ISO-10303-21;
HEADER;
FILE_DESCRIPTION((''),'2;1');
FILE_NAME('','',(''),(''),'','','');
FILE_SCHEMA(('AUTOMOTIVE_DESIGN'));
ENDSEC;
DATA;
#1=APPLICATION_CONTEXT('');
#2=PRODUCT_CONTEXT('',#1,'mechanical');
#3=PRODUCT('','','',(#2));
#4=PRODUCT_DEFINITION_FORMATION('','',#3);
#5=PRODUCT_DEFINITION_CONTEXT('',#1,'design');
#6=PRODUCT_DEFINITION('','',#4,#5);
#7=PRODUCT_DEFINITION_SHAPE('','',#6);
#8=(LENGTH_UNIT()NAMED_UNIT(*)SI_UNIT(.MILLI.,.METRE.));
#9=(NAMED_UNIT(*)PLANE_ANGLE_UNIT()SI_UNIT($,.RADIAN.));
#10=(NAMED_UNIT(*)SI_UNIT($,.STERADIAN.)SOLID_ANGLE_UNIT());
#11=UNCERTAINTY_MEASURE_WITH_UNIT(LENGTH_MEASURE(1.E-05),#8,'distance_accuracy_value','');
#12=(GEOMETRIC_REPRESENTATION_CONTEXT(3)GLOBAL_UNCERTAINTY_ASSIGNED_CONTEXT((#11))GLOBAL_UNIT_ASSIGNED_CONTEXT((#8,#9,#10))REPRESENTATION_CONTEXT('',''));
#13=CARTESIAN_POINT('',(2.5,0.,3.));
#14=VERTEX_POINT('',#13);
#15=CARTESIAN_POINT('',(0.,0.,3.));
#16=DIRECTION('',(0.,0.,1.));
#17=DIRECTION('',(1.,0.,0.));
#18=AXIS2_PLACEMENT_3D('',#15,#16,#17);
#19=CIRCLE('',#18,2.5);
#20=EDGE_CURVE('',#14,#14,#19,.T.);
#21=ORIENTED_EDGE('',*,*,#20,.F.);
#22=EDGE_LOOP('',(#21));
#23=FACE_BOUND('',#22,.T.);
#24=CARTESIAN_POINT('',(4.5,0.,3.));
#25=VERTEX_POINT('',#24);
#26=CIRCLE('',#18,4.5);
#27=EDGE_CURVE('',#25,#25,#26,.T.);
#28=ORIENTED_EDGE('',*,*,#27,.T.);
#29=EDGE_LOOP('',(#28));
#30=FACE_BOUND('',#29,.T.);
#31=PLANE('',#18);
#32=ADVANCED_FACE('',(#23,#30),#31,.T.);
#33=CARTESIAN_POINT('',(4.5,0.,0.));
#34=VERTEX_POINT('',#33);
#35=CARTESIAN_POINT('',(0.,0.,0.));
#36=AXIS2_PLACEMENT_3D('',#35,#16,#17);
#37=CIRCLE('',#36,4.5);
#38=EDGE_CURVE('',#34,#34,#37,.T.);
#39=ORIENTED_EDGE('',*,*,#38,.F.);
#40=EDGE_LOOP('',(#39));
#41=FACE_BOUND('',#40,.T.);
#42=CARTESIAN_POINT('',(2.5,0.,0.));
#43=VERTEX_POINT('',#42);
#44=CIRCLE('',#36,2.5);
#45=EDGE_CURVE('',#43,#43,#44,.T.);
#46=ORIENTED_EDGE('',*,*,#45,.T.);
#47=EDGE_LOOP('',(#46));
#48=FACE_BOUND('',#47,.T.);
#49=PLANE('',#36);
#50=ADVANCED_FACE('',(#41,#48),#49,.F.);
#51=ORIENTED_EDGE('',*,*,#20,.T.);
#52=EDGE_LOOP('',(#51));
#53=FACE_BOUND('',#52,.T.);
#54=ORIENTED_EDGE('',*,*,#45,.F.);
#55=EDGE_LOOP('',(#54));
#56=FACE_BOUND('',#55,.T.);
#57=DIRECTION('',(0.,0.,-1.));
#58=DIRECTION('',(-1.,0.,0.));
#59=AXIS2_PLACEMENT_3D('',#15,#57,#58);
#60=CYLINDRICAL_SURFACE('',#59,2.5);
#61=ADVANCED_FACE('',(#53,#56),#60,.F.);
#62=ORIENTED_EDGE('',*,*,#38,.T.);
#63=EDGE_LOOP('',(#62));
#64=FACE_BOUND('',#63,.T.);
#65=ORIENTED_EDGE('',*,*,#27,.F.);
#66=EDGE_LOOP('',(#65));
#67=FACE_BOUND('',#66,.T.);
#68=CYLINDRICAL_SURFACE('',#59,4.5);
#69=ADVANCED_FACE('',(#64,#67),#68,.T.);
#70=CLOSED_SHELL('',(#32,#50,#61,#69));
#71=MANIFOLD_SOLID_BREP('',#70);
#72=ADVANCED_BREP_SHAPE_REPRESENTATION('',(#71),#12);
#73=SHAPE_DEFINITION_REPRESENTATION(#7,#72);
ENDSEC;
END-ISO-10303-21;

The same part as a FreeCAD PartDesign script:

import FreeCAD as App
import Part
import Sketcher
from FreeCAD import Vector
Q = App.Units.Quantity

doc = App.newDocument("Part")
params = doc.addObject("Spreadsheet::Sheet", "Params")
for row, (alias, value) in enumerate([
    ("sketch1_diameter", "9 mm"),
    ("sketch1_diameter2", "5 mm"),
    ("pad1_length", "3 mm"),
], start=1):
    params.set(f"A{row}", alias)
    params.set(f"B{row}", "=" + value)
    params.setAlias(f"B{row}", alias)

body = doc.addObject("PartDesign::Body", "Body")

sketch1 = body.newObject("Sketcher::SketchObject", "Sketch")
sketch1.AttachmentSupport = (doc.getObject("XY_Plane"), [""])
sketch1.MapMode = "FlatFace"
sketch1.addGeometry([
    Part.Circle(Vector(0, 0, 0), Vector(0, 0, 1), 4.5),
    Part.Circle(Vector(0, 0, 0), Vector(0, 0, 1), 2.5),
], False)
sketch1.addConstraint([
    Sketcher.Constraint("Coincident", 0, 3, -1, 1),
    Sketcher.Constraint("Coincident", 1, 3, -1, 1),
    Sketcher.Constraint("Diameter", 0, Q("9 mm")),
    Sketcher.Constraint("Diameter", 1, Q("5 mm")),
])
sketch1.setExpression("Constraints[2]", "Params.sketch1_diameter")
sketch1.setExpression("Constraints[3]", "Params.sketch1_diameter2")
pad1 = body.newObject("PartDesign::Pad", "Pad")
pad1.Profile = sketch1
pad1.setExpression("Length", "Params.pad1_length")

doc.recompute()
